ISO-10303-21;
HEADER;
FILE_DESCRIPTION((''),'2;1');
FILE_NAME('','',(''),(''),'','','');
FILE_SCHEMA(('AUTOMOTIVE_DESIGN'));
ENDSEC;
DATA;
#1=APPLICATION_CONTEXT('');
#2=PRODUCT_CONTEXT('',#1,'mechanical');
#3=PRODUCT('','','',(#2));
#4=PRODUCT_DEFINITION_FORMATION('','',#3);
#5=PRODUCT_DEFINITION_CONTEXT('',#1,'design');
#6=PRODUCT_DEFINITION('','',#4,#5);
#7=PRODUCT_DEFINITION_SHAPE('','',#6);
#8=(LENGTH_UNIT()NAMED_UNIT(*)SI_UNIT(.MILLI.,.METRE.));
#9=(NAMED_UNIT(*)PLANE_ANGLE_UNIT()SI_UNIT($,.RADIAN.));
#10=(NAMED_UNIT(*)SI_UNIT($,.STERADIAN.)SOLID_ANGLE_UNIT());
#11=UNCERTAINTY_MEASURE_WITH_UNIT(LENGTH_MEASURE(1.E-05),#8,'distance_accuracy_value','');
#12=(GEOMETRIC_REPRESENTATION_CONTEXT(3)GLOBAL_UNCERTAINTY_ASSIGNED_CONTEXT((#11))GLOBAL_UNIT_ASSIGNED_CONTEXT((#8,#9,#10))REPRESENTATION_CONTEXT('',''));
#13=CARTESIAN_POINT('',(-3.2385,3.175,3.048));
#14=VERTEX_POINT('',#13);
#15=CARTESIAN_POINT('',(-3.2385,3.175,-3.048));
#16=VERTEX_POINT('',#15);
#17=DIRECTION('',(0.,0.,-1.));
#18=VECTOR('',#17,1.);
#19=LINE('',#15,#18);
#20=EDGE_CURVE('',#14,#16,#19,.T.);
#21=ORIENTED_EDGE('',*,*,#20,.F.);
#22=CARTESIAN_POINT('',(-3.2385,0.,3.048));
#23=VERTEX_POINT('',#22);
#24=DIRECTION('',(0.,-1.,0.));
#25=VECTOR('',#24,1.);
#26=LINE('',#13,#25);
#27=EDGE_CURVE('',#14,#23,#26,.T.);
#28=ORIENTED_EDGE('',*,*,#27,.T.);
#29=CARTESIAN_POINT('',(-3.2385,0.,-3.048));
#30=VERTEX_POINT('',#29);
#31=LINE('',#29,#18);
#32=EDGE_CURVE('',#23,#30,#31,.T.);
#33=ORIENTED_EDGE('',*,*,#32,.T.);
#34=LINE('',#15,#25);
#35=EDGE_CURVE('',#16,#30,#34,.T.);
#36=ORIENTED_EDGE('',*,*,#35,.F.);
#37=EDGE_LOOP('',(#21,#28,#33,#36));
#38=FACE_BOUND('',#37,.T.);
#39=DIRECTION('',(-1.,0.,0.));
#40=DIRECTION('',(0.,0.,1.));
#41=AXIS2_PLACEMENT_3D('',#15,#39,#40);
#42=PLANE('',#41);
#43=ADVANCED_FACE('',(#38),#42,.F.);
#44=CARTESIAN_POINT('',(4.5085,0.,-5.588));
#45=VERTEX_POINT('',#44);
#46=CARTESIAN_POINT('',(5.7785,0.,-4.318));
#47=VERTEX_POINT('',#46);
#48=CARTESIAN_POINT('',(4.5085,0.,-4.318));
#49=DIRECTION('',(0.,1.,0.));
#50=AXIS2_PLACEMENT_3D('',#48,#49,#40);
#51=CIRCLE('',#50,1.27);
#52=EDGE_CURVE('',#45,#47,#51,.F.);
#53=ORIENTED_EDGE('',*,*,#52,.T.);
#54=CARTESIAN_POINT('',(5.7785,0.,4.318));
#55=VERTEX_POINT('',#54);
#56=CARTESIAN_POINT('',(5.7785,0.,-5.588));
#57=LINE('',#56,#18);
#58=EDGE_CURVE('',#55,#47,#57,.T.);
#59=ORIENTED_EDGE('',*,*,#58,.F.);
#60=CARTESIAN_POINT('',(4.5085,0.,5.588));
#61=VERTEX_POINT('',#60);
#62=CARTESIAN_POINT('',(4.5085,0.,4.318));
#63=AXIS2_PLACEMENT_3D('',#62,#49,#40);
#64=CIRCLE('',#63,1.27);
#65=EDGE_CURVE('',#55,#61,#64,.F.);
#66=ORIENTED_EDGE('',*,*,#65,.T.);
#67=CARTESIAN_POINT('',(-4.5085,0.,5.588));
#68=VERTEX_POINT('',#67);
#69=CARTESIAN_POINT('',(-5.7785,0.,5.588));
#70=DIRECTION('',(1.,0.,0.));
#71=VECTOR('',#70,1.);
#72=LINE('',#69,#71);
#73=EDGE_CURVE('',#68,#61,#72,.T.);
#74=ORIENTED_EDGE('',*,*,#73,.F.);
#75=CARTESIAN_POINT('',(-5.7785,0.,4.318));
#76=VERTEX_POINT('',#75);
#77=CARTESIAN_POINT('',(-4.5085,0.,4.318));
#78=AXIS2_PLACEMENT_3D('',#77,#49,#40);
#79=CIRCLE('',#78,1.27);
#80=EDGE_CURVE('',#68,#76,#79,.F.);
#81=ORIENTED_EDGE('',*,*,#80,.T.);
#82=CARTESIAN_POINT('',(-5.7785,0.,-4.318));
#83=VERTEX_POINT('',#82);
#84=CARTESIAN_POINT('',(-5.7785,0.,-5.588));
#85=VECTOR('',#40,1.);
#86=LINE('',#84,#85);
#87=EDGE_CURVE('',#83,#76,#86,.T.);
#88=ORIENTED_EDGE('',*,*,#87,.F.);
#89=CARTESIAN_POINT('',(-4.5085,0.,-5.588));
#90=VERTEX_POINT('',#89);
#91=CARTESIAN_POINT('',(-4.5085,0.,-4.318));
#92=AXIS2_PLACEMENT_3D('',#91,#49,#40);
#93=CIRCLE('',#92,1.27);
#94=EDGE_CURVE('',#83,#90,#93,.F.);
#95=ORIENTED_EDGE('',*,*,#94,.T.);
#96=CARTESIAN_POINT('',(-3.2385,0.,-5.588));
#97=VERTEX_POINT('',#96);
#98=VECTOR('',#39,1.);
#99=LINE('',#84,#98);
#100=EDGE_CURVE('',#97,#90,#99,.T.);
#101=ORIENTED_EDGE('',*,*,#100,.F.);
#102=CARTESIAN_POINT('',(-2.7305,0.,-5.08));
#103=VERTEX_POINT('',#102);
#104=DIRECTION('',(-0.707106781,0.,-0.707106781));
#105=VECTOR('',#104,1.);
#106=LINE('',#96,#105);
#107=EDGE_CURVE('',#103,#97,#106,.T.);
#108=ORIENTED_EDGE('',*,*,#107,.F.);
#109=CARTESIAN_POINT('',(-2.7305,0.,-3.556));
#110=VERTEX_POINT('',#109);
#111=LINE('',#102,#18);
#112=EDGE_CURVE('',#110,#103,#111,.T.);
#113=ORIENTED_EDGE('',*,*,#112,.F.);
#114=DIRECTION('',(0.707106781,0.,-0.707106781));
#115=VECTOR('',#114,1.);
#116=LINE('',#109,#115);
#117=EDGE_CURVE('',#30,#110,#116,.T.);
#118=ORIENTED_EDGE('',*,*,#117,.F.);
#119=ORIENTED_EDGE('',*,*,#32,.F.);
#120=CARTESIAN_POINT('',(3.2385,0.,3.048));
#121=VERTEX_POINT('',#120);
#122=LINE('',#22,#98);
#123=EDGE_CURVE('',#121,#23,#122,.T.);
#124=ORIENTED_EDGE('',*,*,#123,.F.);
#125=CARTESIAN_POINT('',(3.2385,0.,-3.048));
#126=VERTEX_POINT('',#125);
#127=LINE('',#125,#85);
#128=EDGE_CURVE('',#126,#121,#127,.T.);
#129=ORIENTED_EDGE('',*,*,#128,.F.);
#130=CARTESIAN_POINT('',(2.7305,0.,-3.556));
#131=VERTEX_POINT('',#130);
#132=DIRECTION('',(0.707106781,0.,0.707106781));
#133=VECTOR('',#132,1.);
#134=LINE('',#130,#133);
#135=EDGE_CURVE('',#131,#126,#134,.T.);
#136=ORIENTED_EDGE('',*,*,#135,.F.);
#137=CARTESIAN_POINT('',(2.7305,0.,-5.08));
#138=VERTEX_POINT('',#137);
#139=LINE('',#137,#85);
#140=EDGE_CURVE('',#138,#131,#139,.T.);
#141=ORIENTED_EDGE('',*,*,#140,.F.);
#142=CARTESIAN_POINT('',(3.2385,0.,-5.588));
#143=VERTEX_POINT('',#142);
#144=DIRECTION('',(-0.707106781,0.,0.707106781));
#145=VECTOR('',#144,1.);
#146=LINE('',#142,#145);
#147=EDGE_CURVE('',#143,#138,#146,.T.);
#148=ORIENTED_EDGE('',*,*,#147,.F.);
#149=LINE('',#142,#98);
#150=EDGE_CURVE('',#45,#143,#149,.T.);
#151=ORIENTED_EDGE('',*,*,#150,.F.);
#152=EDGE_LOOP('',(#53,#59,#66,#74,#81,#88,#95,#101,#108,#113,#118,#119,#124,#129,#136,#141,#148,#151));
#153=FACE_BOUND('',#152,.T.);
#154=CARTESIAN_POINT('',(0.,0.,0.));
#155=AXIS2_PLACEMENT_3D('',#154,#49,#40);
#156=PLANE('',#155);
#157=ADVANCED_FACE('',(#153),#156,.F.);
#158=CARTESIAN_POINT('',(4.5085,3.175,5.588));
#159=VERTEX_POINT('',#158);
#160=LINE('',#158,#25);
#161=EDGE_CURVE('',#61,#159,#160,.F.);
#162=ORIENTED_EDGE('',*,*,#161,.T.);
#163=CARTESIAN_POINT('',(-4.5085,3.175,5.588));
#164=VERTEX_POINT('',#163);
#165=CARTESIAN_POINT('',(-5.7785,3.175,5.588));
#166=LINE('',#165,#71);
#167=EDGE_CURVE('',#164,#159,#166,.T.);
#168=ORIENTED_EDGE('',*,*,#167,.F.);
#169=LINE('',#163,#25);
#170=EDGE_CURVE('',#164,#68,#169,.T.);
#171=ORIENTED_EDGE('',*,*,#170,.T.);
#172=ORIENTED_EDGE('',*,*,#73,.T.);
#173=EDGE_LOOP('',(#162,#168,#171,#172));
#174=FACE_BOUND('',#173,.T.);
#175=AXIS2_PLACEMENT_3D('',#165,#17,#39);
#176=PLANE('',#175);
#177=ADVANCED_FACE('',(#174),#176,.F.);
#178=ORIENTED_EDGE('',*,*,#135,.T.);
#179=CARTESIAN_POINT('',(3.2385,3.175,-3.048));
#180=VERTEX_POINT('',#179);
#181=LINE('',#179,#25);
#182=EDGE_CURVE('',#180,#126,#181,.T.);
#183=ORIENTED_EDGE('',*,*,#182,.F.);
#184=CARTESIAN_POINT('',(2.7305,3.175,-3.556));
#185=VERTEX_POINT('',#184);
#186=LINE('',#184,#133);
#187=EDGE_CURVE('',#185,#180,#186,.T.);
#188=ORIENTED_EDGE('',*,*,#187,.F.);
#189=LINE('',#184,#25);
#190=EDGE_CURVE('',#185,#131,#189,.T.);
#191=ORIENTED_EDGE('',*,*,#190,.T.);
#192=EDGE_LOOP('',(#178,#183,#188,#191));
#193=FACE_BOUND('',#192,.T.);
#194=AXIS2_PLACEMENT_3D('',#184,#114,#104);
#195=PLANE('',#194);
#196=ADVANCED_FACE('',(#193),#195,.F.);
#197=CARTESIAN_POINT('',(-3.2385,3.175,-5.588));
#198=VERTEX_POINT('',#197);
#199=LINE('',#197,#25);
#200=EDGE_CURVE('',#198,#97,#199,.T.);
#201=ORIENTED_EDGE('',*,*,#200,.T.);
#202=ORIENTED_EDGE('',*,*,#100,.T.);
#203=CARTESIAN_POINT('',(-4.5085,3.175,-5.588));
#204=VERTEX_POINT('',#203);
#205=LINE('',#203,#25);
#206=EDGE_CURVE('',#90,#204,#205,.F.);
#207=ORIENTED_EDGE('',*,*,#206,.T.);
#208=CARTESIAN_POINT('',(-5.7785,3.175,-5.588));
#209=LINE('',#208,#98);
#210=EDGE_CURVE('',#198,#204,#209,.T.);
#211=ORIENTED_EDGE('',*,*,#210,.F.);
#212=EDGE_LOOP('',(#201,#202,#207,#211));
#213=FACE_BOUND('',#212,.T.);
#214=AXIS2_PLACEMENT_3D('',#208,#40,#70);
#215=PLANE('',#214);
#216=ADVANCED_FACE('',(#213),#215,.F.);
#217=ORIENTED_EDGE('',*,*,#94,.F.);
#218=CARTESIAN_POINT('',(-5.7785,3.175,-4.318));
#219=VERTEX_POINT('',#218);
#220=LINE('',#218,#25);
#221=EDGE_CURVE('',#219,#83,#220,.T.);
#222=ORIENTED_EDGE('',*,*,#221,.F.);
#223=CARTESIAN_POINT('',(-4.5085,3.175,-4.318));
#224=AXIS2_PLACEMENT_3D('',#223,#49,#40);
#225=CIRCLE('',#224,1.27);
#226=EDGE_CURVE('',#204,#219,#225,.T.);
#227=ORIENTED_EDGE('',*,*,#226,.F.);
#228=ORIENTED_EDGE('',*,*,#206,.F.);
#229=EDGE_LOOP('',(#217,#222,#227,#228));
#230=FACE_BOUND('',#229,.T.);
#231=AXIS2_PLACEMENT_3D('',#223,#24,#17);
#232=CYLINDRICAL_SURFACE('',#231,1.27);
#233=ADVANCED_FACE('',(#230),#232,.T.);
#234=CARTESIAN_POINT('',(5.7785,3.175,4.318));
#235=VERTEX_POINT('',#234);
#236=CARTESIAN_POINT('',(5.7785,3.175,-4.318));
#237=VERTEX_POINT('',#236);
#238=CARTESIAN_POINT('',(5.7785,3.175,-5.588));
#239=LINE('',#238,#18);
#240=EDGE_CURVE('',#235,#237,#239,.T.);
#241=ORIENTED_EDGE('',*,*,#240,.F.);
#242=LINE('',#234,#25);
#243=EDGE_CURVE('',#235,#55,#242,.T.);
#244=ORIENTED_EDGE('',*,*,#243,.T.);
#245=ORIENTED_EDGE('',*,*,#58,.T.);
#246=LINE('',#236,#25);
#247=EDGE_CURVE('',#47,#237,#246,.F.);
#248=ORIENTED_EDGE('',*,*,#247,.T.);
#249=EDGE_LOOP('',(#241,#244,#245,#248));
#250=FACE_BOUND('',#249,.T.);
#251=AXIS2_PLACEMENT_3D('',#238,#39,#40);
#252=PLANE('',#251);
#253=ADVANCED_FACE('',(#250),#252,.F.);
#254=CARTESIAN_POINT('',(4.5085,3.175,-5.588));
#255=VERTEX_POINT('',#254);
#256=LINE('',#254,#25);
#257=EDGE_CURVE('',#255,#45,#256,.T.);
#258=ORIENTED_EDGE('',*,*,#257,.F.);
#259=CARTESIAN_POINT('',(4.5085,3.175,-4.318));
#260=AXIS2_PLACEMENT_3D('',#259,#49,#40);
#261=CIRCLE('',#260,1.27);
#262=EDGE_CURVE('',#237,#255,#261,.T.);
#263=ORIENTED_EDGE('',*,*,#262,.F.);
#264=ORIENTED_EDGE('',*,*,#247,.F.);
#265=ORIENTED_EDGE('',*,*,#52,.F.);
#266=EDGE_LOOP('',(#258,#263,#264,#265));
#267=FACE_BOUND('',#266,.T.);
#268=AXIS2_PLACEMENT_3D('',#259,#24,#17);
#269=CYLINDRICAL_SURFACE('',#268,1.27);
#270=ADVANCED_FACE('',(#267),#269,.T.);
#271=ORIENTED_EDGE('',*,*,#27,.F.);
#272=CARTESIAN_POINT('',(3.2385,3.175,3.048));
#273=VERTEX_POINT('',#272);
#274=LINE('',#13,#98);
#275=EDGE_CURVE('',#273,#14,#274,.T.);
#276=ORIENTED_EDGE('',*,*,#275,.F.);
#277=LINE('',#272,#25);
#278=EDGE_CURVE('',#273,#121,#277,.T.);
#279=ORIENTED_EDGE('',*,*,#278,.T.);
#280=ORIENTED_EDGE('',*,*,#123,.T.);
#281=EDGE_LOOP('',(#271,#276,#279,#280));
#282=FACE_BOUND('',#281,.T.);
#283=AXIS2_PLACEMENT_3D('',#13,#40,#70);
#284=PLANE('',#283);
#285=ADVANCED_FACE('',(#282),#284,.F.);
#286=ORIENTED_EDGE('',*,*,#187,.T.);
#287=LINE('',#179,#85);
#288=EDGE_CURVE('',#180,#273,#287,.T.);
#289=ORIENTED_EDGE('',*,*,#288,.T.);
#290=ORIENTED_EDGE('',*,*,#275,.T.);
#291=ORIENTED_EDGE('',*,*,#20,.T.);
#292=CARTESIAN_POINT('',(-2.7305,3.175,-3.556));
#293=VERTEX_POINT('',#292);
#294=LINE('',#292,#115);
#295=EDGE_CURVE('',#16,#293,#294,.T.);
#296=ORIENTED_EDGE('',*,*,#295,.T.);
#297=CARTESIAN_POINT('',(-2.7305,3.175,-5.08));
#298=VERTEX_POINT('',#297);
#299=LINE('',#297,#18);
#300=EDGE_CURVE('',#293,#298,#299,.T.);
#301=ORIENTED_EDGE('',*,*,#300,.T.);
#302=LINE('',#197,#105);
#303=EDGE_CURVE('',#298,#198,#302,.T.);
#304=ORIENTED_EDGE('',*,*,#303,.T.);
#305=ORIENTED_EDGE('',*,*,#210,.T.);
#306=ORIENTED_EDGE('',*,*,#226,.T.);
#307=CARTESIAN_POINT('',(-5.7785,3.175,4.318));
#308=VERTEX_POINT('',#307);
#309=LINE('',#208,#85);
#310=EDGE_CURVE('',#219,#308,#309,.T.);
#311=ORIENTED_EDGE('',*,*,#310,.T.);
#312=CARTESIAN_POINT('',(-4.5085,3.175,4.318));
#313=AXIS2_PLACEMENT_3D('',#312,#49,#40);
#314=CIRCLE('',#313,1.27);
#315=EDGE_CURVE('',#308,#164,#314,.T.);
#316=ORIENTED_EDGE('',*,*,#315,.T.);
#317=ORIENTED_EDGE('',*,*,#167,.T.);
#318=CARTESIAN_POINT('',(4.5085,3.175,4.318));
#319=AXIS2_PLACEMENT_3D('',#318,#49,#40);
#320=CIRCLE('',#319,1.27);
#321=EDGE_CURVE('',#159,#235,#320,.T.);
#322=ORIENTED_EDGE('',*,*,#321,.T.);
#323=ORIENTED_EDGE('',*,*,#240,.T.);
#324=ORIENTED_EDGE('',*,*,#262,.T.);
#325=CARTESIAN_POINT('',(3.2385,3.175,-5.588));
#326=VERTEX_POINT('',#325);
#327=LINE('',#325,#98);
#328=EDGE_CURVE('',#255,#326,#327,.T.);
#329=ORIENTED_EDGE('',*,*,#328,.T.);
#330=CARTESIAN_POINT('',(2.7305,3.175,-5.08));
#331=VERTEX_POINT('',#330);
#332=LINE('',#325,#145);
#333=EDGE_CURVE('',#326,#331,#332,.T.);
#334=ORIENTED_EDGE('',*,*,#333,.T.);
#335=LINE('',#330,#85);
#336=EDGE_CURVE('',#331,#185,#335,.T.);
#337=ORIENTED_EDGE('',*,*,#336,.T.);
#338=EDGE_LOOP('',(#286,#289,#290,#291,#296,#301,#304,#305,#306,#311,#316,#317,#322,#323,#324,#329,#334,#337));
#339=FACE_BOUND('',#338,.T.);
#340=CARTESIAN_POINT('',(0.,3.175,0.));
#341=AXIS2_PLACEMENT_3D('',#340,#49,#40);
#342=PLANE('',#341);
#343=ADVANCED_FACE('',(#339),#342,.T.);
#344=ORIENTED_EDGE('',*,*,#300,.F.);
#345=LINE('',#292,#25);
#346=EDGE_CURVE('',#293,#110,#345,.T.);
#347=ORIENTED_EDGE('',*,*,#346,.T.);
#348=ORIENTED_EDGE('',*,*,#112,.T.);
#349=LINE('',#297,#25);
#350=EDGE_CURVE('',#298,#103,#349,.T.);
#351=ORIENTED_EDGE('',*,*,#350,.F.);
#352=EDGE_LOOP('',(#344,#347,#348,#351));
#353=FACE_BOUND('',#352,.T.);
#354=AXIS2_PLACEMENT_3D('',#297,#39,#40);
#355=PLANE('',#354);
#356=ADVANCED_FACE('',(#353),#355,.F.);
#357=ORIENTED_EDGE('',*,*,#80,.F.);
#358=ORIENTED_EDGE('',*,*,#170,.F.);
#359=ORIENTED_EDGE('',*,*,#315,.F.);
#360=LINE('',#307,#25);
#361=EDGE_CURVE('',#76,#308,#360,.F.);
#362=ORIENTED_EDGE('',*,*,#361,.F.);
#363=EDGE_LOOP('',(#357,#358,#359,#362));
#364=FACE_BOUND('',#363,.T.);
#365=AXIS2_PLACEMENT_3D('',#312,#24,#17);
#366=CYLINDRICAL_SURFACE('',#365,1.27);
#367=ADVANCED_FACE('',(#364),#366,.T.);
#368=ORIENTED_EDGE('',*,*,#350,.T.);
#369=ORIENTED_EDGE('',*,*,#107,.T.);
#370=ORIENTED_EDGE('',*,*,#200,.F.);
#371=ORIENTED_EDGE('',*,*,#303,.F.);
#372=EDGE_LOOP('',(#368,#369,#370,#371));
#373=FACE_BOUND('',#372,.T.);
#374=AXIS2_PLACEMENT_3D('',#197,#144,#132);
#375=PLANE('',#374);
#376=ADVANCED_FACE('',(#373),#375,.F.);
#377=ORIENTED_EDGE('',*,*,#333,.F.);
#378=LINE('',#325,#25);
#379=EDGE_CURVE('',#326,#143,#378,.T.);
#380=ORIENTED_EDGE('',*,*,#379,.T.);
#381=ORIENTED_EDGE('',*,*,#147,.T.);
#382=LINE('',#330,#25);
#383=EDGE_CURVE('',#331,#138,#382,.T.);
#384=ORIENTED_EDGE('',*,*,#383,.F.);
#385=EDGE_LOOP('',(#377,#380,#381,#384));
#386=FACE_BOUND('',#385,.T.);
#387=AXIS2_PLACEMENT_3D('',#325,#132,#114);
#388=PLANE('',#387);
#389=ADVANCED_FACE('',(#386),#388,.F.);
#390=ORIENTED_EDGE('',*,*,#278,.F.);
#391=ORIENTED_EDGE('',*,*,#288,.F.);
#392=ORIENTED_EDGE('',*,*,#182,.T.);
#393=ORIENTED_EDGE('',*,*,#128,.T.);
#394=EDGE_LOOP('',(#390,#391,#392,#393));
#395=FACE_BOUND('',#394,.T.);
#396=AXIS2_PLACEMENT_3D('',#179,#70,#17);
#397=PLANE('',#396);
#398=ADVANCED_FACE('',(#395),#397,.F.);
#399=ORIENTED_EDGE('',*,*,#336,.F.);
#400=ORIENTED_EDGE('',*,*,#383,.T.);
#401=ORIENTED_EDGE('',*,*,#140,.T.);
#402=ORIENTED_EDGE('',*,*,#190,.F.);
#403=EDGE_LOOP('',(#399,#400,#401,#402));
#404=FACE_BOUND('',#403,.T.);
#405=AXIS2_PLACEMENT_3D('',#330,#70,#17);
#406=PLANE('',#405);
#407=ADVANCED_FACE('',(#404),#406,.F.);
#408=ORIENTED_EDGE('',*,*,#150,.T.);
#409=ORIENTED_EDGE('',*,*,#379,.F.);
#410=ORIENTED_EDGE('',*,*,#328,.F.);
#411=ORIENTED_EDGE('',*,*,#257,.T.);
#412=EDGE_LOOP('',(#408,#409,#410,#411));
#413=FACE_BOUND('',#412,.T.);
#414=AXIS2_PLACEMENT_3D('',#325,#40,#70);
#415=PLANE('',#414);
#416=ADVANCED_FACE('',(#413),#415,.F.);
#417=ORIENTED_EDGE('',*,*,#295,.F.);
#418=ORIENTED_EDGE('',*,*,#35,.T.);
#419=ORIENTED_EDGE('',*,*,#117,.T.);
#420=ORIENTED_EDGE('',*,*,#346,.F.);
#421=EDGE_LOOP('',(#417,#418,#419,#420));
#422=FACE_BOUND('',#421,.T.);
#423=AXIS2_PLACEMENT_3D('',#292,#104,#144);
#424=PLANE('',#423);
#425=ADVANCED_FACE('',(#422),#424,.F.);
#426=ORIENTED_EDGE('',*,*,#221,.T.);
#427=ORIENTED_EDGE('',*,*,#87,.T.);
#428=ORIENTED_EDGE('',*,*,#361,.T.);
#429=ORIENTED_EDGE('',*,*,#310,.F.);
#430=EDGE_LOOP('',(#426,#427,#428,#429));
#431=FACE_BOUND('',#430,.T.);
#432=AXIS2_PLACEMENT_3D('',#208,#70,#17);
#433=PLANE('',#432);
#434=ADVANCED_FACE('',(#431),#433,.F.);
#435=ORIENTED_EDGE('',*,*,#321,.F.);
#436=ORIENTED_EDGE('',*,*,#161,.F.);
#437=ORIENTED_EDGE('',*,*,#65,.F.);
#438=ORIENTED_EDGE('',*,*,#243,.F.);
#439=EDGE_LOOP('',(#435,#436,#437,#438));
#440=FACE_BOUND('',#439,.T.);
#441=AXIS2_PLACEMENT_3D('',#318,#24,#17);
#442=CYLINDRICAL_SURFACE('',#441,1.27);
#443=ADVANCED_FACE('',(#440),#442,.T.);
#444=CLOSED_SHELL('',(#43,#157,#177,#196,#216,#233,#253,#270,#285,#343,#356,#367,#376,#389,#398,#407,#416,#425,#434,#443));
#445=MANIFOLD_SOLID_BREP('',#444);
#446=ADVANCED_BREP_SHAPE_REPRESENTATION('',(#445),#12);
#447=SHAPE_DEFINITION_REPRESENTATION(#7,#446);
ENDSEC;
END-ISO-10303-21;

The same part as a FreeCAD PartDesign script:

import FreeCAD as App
import Part
import Sketcher
from FreeCAD import Vector
Q = App.Units.Quantity


def edges_at(feature, points):
    """Names of the edges that pass closest to the given points."""
    edges = feature.Shape.Edges
    near = lambda p: min(range(len(edges)), key=lambda i: edges[i].distToShape(Part.Vertex(*p))[0])
    return sorted({f"Edge{near(p) + 1}" for p in points})

doc = App.newDocument("Part")
params = doc.addObject("Spreadsheet::Sheet", "Params")
for row, (alias, value) in enumerate([
    ("sketch1_width", "0.1 in"),
    ("sketch1_height", "0.44 in"),
    ("sketch1_height2", "0.06 in"),
    ("sketch1_height3", "0.24 in"),
    ("sketch1_width2", "0.455 in"),
    ("pad1_length", "0.125 in"),
    ("fillet_radius", "0.05 in"),
], start=1):
    params.set(f"A{row}", alias)
    params.set(f"B{row}", "=" + value)
    params.setAlias(f"B{row}", alias)

body = doc.addObject("PartDesign::Body", "Body")

sketch1 = doc.addObject("Sketcher::SketchObject", "Sketch")
body.addObject(sketch1)
sketch1.AttachmentSupport = (doc.XZ_Plane, [""])
sketch1.MapMode = "FlatFace"
sketch1.addGeometry(Part.LineSegment(Vector(-5.7785, -5.588, 0), Vector(-5.7785, 5.588, 0)), False)
sketch1.addGeometry(Part.LineSegment(Vector(-5.7785, 5.588, 0), Vector(5.7785, 5.588, 0)), False)
sketch1.addGeometry(Part.LineSegment(Vector(5.7785, 5.588, 0), Vector(5.7785, -5.588, 0)), False)
sketch1.addGeometry(Part.LineSegment(Vector(5.7785, -5.588, 0), Vector(3.2385, -5.588, 0)), False)
sketch1.addGeometry(Part.LineSegment(Vector(3.2385, -5.588, 0), Vector(2.7305, -5.08, 0)), False)
sketch1.addGeometry(Part.LineSegment(Vector(2.7305, -5.08, 0), Vector(2.7305, -3.556, 0)), False)
sketch1.addGeometry(Part.LineSegment(Vector(2.7305, -3.556, 0), Vector(3.2385, -3.048, 0)), False)
sketch1.addGeometry(Part.LineSegment(Vector(3.2385, -3.048, 0), Vector(3.2385, 3.048, 0)), False)
sketch1.addGeometry(Part.LineSegment(Vector(3.2385, 3.048, 0), Vector(-3.2385, 3.048, 0)), False)
sketch1.addGeometry(Part.LineSegment(Vector(-3.2385, 3.048, 0), Vector(-3.2385, -3.048, 0)), False)
sketch1.addGeometry(Part.LineSegment(Vector(-3.2385, -3.048, 0), Vector(-2.7305, -3.556, 0)), False)
sketch1.addGeometry(Part.LineSegment(Vector(-2.7305, -3.556, 0), Vector(-2.7305, -5.08, 0)), False)
sketch1.addGeometry(Part.LineSegment(Vector(-2.7305, -5.08, 0), Vector(-3.2385, -5.588, 0)), False)
sketch1.addGeometry(Part.LineSegment(Vector(-3.2385, -5.588, 0), Vector(-5.7785, -5.588, 0)), False)
sketch1.addConstraint(Sketcher.Constraint("Coincident", 0, 2, 1, 1))
sketch1.addConstraint(Sketcher.Constraint("Coincident", 1, 2, 2, 1))
sketch1.addConstraint(Sketcher.Constraint("Coincident", 2, 2, 3, 1))
sketch1.addConstraint(Sketcher.Constraint("Coincident", 3, 2, 4, 1))
sketch1.addConstraint(Sketcher.Constraint("Coincident", 4, 2, 5, 1))
sketch1.addConstraint(Sketcher.Constraint("Coincident", 5, 2, 6, 1))
sketch1.addConstraint(Sketcher.Constraint("Coincident", 6, 2, 7, 1))
sketch1.addConstraint(Sketcher.Constraint("Coincident", 7, 2, 8, 1))
sketch1.addConstraint(Sketcher.Constraint("Coincident", 8, 2, 9, 1))
sketch1.addConstraint(Sketcher.Constraint("Coincident", 9, 2, 10, 1))
sketch1.addConstraint(Sketcher.Constraint("Coincident", 10, 2, 11, 1))
sketch1.addConstraint(Sketcher.Constraint("Coincident", 11, 2, 12, 1))
sketch1.addConstraint(Sketcher.Constraint("Coincident", 12, 2, 13, 1))
sketch1.addConstraint(Sketcher.Constraint("Coincident", 13, 2, 0, 1))
sketch1.addConstraint(Sketcher.Constraint("Vertical", 0))
sketch1.addConstraint(Sketcher.Constraint("Horizontal", 1))
sketch1.addConstraint(Sketcher.Constraint("Vertical", 2))
sketch1.addConstraint(Sketcher.Constraint("Horizontal", 3))
sketch1.addConstraint(Sketcher.Constraint("Vertical", 5))
sketch1.addConstraint(Sketcher.Constraint("Vertical", 7))
sketch1.addConstraint(Sketcher.Constraint("Horizontal", 8))
sketch1.addConstraint(Sketcher.Constraint("Vertical", 9))
sketch1.addConstraint(Sketcher.Constraint("Vertical", 11))
sketch1.addConstraint(Sketcher.Constraint("Horizontal", 13))
sketch1.addConstraint(Sketcher.Constraint("Symmetric", 0, 2, 2, 2, -1, 1))
sketch1.addConstraint(Sketcher.Constraint("Symmetric", 6, 2, 8, 2, -1, 1))
sketch1.addConstraint(Sketcher.Constraint("Symmetric", 5, 2, 10, 2, -2))
sketch1.addConstraint(Sketcher.Constraint("Symmetric", 3, 2, 12, 2, -2))
sketch1.addConstraint(Sketcher.Constraint("Perpendicular", 4, 6))
sketch1.addConstraint(Sketcher.Constraint("Perpendicular", 6, 10))
sketch1.addConstraint(Sketcher.Constraint("Perpendicular", 10, 12))
sketch1.addConstraint(Sketcher.Constraint("Horizontal", 6, 2, 9, 2))
sketch1.addConstraint(Sketcher.Constraint("Vertical", 3, 2, 6, 2))
sketch1.addConstraint(Sketcher.Constraint("DistanceX", 3, 2, 3, 1, Q("0.1 in")))
sketch1.addConstraint(Sketcher.Constraint("DistanceY", 0, 1, 0, 2, Q("0.44 in")))
sketch1.addConstraint(Sketcher.Constraint("DistanceY", 5, 1, 5, 2, Q("0.06 in")))
sketch1.addConstraint(Sketcher.Constraint("DistanceY", 7, 1, 7, 2, Q("0.24 in")))
sketch1.addConstraint(Sketcher.Constraint("DistanceX", 1, 1, 1, 2, Q("0.455 in")))
sketch1.setExpression("Constraints[33]", "Params.sketch1_width")
sketch1.setExpression("Constraints[34]", "Params.sketch1_height")
sketch1.setExpression("Constraints[35]", "Params.sketch1_height2")
sketch1.setExpression("Constraints[36]", "Params.sketch1_height3")
sketch1.setExpression("Constraints[37]", "Params.sketch1_width2")
pad1 = doc.addObject("PartDesign::Pad", "Pad")
body.addObject(pad1)
pad1.Profile = sketch1
pad1.setExpression("Length", "Params.pad1_length")
pad1.Reversed = True
doc.recompute()

fillet = doc.addObject("PartDesign::Fillet", "Fillet")
body.addObject(fillet)
fillet.Base = (pad1, edges_at(pad1, [
    (5.779, 1.587, -5.588),
    (5.779, 1.587, 5.588),
    (-5.779, 1.587, 5.588),
    (-5.779, 1.587, -5.588),
]))
fillet.setExpression("Radius", "Params.fillet_radius")

doc.recompute()
